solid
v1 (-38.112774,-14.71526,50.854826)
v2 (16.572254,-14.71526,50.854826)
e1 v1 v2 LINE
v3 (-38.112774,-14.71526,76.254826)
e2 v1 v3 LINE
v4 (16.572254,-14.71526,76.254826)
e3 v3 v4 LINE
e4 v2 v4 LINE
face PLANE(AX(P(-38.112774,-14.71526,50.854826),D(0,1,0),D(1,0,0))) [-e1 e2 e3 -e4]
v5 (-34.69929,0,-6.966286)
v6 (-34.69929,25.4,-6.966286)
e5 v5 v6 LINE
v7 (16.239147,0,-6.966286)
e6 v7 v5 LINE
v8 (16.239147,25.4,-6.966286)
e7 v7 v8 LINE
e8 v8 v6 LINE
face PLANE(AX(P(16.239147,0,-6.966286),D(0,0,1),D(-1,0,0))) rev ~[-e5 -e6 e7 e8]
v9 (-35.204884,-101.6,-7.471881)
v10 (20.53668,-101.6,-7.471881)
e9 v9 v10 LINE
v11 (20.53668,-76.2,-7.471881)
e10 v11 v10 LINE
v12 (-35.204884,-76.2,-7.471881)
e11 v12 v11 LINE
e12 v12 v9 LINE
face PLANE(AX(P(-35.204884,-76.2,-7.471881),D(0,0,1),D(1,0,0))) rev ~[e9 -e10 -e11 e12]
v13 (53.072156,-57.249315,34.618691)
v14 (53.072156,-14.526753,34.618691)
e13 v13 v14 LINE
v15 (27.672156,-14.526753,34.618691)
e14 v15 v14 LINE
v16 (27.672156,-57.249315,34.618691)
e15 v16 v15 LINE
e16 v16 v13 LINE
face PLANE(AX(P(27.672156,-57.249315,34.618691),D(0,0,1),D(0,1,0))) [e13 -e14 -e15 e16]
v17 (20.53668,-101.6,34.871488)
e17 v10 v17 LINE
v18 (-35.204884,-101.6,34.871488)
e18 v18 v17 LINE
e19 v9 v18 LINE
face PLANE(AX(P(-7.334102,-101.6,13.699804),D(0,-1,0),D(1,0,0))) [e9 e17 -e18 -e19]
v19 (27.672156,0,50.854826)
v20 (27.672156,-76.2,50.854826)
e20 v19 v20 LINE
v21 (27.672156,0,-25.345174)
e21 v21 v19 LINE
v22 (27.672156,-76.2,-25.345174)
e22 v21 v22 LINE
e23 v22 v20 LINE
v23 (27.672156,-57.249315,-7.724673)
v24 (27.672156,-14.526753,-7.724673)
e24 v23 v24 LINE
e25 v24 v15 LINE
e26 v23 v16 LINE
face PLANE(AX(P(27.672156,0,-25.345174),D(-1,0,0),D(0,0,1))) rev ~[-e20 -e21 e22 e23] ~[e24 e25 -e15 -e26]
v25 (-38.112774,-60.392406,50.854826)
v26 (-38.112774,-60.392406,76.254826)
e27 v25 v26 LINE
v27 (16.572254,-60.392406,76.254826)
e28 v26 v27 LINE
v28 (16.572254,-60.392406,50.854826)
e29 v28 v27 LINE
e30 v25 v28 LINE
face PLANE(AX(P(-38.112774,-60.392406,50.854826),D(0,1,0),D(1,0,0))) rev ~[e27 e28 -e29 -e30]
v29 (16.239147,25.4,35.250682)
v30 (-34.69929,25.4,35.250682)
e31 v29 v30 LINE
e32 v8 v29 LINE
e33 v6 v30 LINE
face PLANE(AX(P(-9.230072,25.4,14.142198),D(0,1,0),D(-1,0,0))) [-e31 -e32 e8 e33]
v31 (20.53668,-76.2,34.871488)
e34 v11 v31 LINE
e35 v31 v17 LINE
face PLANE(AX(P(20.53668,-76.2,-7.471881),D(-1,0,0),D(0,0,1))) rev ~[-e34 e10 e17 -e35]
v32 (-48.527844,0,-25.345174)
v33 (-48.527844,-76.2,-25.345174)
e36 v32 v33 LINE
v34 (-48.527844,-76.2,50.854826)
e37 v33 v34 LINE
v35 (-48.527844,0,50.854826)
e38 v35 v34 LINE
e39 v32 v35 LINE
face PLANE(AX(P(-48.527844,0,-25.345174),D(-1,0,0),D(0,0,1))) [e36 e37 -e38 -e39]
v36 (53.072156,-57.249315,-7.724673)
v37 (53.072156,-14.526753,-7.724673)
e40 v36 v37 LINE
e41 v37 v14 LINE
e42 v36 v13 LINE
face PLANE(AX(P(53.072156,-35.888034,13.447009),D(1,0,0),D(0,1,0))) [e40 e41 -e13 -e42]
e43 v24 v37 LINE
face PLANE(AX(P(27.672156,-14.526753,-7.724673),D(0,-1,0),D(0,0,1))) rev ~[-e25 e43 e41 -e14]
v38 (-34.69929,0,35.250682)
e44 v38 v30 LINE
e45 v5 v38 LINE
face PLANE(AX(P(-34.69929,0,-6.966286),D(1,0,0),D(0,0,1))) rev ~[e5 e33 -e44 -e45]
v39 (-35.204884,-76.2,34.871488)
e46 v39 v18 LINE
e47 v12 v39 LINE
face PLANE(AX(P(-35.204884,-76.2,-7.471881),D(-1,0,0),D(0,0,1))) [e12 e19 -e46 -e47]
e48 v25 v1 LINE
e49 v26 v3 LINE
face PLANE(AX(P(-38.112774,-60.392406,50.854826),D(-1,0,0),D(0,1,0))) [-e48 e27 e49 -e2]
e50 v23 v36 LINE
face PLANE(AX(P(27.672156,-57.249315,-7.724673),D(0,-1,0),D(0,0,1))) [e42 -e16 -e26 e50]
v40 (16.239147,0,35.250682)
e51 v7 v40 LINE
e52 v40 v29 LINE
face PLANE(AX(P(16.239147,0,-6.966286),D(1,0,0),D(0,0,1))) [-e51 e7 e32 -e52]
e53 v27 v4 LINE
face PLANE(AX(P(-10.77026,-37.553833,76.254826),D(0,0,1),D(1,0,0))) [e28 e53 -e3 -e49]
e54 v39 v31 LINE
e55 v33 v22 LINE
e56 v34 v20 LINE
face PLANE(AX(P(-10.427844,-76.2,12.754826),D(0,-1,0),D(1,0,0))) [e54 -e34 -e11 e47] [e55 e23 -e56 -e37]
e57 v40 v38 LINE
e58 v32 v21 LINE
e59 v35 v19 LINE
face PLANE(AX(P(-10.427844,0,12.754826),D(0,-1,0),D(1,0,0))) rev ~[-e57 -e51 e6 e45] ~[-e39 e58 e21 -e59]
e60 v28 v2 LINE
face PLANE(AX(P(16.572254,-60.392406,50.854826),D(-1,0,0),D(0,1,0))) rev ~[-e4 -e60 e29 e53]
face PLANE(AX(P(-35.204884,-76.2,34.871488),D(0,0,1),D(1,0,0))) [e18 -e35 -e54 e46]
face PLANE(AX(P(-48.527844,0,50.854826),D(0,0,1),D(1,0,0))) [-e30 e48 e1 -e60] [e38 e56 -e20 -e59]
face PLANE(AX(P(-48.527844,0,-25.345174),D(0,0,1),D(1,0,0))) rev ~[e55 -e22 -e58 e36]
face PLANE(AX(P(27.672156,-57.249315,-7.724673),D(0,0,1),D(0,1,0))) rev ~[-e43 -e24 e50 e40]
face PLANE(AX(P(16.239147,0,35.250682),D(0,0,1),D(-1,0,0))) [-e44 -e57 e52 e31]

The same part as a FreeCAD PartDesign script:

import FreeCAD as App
import Part
import Sketcher

V = App.Vector
Q = App.Units.Quantity

doc = App.newDocument("Part")
body = doc.addObject("PartDesign::Body", "Body")

sketch1 = body.newObject("Sketcher::SketchObject", "Sketch")
sketch1.AttachmentSupport = (doc.getObject("XZ_Plane"), [""])
sketch1.MapMode = "FlatFace"
sketch1.addGeometry(Part.LineSegment(V(-49, 51, 0), V(-49, -25, 0)), False)
sketch1.addGeometry(Part.LineSegment(V(-49, -25, 0), V(28, -25, 0)), False)
sketch1.addGeometry(Part.LineSegment(V(28, -25, 0), V(28, 51, 0)), False)
sketch1.addGeometry(Part.LineSegment(V(28, 51, 0), V(-49, 51, 0)), False)
sketch1.addConstraint(Sketcher.Constraint("Coincident", 0, 2, 1, 1))
sketch1.addConstraint(Sketcher.Constraint("Coincident", 1, 2, 2, 1))
sketch1.addConstraint(Sketcher.Constraint("Coincident", 2, 2, 3, 1))
sketch1.addConstraint(Sketcher.Constraint("Coincident", 3, 2, 0, 1))
sketch1.addConstraint(Sketcher.Constraint("Vertical", 0))
sketch1.addConstraint(Sketcher.Constraint("Horizontal", 1))
sketch1.addConstraint(Sketcher.Constraint("Vertical", 2))
sketch1.addConstraint(Sketcher.Constraint("Horizontal", 3))
sketch1.addConstraint(Sketcher.Constraint("Equal", 3, 0))
sketch1.addConstraint(Sketcher.Constraint("DistanceX", 1, 1, 1, 2, Q("3 in")))
sketch1.addConstraint(Sketcher.Constraint("DistanceX", 0, 2, -1, 1, Q("48.527844 mm")))
sketch1.addConstraint(Sketcher.Constraint("DistanceY", 0, 2, -1, 1, Q("25.345174 mm")))
pad1 = body.newObject("PartDesign::Pad", "Pad")
pad1.Profile = sketch1
pad1.Length = Q("3 in")

sketch2 = body.newObject("Sketcher::SketchObject", "Sketch001")
sketch2.AttachmentSupport = (doc.getObject("XY_Plane"), [""])
sketch2.MapMode = "FlatFace"
sketch2.AttachmentOffset = App.Placement(V(0, 0, 50.854826), App.Rotation())
sketch2.addGeometry(Part.LineSegment(V(-38, -15, 0), V(-38, -60, 0)), False)
sketch2.addGeometry(Part.LineSegment(V(-38, -60, 0), V(17, -60, 0)), False)
sketch2.addGeometry(Part.LineSegment(V(17, -60, 0), V(17, -15, 0)), False)
sketch2.addGeometry(Part.LineSegment(V(17, -15, 0), V(-38, -15, 0)), False)
sketch2.addConstraint(Sketcher.Constraint("Coincident", 0, 2, 1, 1))
sketch2.addConstraint(Sketcher.Constraint("Coincident", 1, 2, 2, 1))
sketch2.addConstraint(Sketcher.Constraint("Coincident", 2, 2, 3, 1))
sketch2.addConstraint(Sketcher.Constraint("Coincident", 3, 2, 0, 1))
sketch2.addConstraint(Sketcher.Constraint("Vertical", 0))
sketch2.addConstraint(Sketcher.Constraint("Horizontal", 1))
sketch2.addConstraint(Sketcher.Constraint("Vertical", 2))
sketch2.addConstraint(Sketcher.Constraint("Horizontal", 3))
sketch2.addConstraint(Sketcher.Constraint("DistanceX", 1, 1, 1, 2, Q("54.685028 mm")))
sketch2.addConstraint(Sketcher.Constraint("DistanceY", 0, 2, 0, 1, Q("45.677146 mm")))
sketch2.addConstraint(Sketcher.Constraint("DistanceY", 2, 2, -1, 1, Q("14.71526 mm")))
sketch2.addConstraint(Sketcher.Constraint("DistanceX", 0, 2, -1, 1, Q("38.112774 mm")))
pad2 = body.newObject("PartDesign::Pad", "Pad001")
pad2.Profile = sketch2
pad2.Length = Q("1 in")

sketch3 = body.newObject("Sketcher::SketchObject", "Sketch002")
sketch3.AttachmentSupport = (doc.getObject("YZ_Plane"), [""])
sketch3.MapMode = "FlatFace"
sketch3.AttachmentOffset = App.Placement(V(0, 0, 27.672156), App.Rotation())
sketch3.addGeometry(Part.LineSegment(V(-57, 35, 0), V(-57, -8, 0)), False)
sketch3.addGeometry(Part.LineSegment(V(-57, -8, 0), V(-15, -8, 0)), False)
sketch3.addGeometry(Part.LineSegment(V(-15, -8, 0), V(-15, 35, 0)), False)
sketch3.addGeometry(Part.LineSegment(V(-15, 35, 0), V(-57, 35, 0)), False)
sketch3.addConstraint(Sketcher.Constraint("Coincident", 0, 2, 1, 1))
sketch3.addConstraint(Sketcher.Constraint("Coincident", 1, 2, 2, 1))
sketch3.addConstraint(Sketcher.Constraint("Coincident", 2, 2, 3, 1))
sketch3.addConstraint(Sketcher.Constraint("Coincident", 3, 2, 0, 1))
sketch3.addConstraint(Sketcher.Constraint("Vertical", 0))
sketch3.addConstraint(Sketcher.Constraint("Horizontal", 1))
sketch3.addConstraint(Sketcher.Constraint("Vertical", 2))
sketch3.addConstraint(Sketcher.Constraint("Horizontal", 3))
sketch3.addConstraint(Sketcher.Constraint("DistanceX", 1, 1, 1, 2, Q("42.722562 mm")))
sketch3.addConstraint(Sketcher.Constraint("DistanceY", 0, 2, 0, 1, Q("42.343364 mm")))
sketch3.addConstraint(Sketcher.Constraint("DistanceY", -1, 1, 2, 2, Q("34.618691 mm")))
sketch3.addConstraint(Sketcher.Constraint("DistanceX", 0, 2, -1, 1, Q("57.249315 mm")))
pad3 = body.newObject("PartDesign::Pad", "Pad002")
pad3.Profile = sketch3
pad3.Length = Q("1 in")

sketch4 = body.newObject("Sketcher::SketchObject", "Sketch003")
sketch4.AttachmentSupport = (doc.getObject("XZ_Plane"), [""])
sketch4.MapMode = "FlatFace"
sketch4.AttachmentOffset = App.Placement(V(0, 0, 3 * 25.4), App.Rotation())
sketch4.addGeometry(Part.LineSegment(V(-35, 35, 0), V(-35, -7, 0)), False)
sketch4.addGeometry(Part.LineSegment(V(-35, -7, 0), V(21, -7, 0)), False)
sketch4.addGeometry(Part.LineSegment(V(21, -7, 0), V(21, 35, 0)), False)
sketch4.addGeometry(Part.LineSegment(V(21, 35, 0), V(-35, 35, 0)), False)
sketch4.addConstraint(Sketcher.Constraint("Coincident", 0, 2, 1, 1))
sketch4.addConstraint(Sketcher.Constraint("Coincident", 1, 2, 2, 1))
sketch4.addConstraint(Sketcher.Constraint("Coincident", 2, 2, 3, 1))
sketch4.addConstraint(Sketcher.Constraint("Coincident", 3, 2, 0, 1))
sketch4.addConstraint(Sketcher.Constraint("Vertical", 0))
sketch4.addConstraint(Sketcher.Constraint("Horizontal", 1))
sketch4.addConstraint(Sketcher.Constraint("Vertical", 2))
sketch4.addConstraint(Sketcher.Constraint("Horizontal", 3))
sketch4.addConstraint(Sketcher.Constraint("DistanceY", 0, 2, 0, 1, Q("42.343369 mm")))
sketch4.addConstraint(Sketcher.Constraint("DistanceX", 1, 1, 1, 2, Q("55.741564 mm")))
sketch4.addConstraint(Sketcher.Constraint("DistanceY", 0, 2, -1, 1, Q("7.471881 mm")))
sketch4.addConstraint(Sketcher.Constraint("DistanceX", -1, 1, 1, 2, Q("20.53668 mm")))
pad4 = body.newObject("PartDesign::Pad", "Pad003")
pad4.Profile = sketch4
pad4.Length = Q("1 in")

sketch5 = body.newObject("Sketcher::SketchObject", "Sketch004")
sketch5.AttachmentSupport = (doc.getObject("XZ_Plane"), [""])
sketch5.MapMode = "FlatFace"
sketch5.addGeometry(Part.LineSegment(V(16, 35, 0), V(16, -7, 0)), False)
sketch5.addGeometry(Part.LineSegment(V(16, -7, 0), V(-35, -7, 0)), False)
sketch5.addGeometry(Part.LineSegment(V(-35, -7, 0), V(-35, 35, 0)), False)
sketch5.addGeometry(Part.LineSegment(V(-35, 35, 0), V(16, 35, 0)), False)
sketch5.addConstraint(Sketcher.Constraint("Coincident", 0, 2, 1, 1))
sketch5.addConstraint(Sketcher.Constraint("Coincident", 1, 2, 2, 1))
sketch5.addConstraint(Sketcher.Constraint("Coincident", 2, 2, 3, 1))
sketch5.addConstraint(Sketcher.Constraint("Coincident", 3, 2, 0, 1))
sketch5.addConstraint(Sketcher.Constraint("Vertical", 0))
sketch5.addConstraint(Sketcher.Constraint("Horizontal", 1))
sketch5.addConstraint(Sketcher.Constraint("Vertical", 2))
sketch5.addConstraint(Sketcher.Constraint("Horizontal", 3))
sketch5.addConstraint(Sketcher.Constraint("DistanceX", 1, 2, 1, 1, Q("50.938437 mm")))
sketch5.addConstraint(Sketcher.Constraint("DistanceY", 0, 2, 0, 1, Q("42.216968 mm")))
sketch5.addConstraint(Sketcher.Constraint("DistanceX", 1, 2, -1, 1, Q("34.69929 mm")))
sketch5.addConstraint(Sketcher.Constraint("DistanceY", -1, 1, 2, 2, Q("35.250682 mm")))
pad5 = body.newObject("PartDesign::Pad", "Pad004")
pad5.Profile = sketch5
pad5.Length = Q("1 in")
pad5.Reversed = True

doc.recompute()
